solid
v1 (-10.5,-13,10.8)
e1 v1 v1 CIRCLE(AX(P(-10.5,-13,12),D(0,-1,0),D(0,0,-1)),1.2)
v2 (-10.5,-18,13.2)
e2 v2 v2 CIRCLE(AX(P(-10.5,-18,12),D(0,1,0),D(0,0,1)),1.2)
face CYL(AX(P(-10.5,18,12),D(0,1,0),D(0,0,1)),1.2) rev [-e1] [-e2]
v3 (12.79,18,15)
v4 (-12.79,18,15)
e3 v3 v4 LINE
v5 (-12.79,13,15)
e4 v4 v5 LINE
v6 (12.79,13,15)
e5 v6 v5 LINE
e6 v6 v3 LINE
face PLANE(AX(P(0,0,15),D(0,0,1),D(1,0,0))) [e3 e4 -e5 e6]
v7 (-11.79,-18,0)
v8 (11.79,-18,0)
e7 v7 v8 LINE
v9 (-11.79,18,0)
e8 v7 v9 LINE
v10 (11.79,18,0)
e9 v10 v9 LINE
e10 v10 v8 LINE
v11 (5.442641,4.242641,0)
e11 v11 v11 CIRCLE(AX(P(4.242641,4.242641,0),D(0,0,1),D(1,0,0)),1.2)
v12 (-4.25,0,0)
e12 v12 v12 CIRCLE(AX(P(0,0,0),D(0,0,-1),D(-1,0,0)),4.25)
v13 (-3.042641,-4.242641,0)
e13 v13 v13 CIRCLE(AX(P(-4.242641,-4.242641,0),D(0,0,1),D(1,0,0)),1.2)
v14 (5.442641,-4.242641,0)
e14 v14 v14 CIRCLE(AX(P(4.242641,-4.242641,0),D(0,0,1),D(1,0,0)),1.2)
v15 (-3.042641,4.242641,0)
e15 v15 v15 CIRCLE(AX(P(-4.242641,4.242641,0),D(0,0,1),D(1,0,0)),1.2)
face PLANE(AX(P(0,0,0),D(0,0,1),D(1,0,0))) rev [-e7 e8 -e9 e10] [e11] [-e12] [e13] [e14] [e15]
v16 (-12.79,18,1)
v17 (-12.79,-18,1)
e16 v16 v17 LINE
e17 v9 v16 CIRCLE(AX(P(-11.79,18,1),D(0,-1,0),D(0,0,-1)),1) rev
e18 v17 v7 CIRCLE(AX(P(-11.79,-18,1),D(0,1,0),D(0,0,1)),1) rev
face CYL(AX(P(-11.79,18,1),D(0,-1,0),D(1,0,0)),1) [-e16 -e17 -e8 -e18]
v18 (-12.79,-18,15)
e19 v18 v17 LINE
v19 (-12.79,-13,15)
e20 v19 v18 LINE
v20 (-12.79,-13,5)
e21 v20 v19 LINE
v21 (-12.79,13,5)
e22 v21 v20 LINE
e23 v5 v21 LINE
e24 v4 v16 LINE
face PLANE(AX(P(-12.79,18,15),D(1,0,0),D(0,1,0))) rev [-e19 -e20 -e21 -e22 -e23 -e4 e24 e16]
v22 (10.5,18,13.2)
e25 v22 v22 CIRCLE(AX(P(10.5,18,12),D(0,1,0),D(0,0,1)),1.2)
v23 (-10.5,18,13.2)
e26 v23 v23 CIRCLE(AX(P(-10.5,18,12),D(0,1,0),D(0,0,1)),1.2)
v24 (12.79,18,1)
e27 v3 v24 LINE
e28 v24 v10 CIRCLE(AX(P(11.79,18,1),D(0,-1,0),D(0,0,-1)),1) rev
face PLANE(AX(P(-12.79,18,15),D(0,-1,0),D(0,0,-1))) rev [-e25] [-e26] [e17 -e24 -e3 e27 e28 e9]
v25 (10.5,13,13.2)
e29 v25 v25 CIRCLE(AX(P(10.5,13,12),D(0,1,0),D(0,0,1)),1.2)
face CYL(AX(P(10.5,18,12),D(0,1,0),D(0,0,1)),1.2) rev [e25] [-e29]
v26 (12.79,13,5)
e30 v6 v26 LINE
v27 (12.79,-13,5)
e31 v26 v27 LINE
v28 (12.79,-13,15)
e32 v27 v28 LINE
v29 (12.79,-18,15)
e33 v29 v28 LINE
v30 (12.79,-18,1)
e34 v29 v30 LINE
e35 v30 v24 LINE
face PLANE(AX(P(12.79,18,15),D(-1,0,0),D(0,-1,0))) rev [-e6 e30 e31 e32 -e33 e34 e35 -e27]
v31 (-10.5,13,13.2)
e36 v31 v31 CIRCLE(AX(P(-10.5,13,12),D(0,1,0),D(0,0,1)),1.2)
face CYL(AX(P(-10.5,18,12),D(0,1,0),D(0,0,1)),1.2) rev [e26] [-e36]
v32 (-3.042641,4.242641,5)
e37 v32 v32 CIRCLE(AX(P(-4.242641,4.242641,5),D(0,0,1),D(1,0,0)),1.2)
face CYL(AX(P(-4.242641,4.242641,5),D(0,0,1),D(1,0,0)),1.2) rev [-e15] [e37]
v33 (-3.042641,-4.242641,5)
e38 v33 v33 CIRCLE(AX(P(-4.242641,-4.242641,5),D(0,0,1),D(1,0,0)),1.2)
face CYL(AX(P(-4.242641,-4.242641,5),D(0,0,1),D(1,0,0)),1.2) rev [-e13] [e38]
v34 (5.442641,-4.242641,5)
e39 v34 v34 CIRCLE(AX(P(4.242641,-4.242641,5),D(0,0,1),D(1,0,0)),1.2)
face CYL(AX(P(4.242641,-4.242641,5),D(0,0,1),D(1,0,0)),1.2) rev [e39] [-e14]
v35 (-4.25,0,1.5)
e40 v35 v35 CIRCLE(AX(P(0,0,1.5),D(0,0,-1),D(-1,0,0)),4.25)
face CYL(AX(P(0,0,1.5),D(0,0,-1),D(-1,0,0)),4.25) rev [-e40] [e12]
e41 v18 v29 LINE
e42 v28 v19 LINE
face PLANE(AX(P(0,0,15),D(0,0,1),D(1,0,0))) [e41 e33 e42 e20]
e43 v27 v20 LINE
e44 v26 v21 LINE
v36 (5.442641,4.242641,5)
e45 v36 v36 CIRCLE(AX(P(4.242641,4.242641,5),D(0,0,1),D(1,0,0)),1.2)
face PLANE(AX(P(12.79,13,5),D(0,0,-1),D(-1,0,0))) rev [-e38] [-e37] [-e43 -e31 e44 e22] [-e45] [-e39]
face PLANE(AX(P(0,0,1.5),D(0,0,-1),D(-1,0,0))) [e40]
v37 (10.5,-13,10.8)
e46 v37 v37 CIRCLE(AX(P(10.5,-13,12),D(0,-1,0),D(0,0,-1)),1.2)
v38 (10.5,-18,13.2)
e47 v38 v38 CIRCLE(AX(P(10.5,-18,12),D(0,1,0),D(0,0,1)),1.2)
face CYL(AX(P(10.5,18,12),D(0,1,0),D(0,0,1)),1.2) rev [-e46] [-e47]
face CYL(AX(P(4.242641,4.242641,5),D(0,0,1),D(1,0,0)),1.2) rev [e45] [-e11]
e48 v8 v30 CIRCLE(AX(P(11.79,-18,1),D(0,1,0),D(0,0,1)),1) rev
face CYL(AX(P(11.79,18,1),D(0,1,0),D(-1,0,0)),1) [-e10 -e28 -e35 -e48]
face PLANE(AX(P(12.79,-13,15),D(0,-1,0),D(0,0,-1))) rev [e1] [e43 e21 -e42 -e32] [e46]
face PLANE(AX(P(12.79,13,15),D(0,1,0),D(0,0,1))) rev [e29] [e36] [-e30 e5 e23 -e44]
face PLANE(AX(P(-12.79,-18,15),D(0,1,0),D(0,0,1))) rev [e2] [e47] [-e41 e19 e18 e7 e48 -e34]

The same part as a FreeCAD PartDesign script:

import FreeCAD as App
import Part
import Sketcher


def edges_at(feature, points):
    """Names of the edges that pass closest to the given points."""
    edges = feature.Shape.Edges
    near = lambda p: min(range(len(edges)), key=lambda i: edges[i].distToShape(Part.Vertex(*p))[0])
    return sorted({f"Edge{near(p) + 1}" for p in points})

doc = App.newDocument("Part")
body = doc.addObject("PartDesign::Body", "Body")

sketch1 = body.newObject("Sketcher::SketchObject", "Sketch")
sketch1.AttachmentSupport = (doc.getObject("XY_Plane"), [""])
sketch1.MapMode = "FlatFace"
sketch1.addGeometry([
    Part.LineSegment(App.Vector(-13, 18, 0), App.Vector(-13, -18, 0)),
    Part.LineSegment(App.Vector(-13, -18, 0), App.Vector(13, -18, 0)),
    Part.LineSegment(App.Vector(13, -18, 0), App.Vector(13, 18, 0)),
    Part.LineSegment(App.Vector(13, 18, 0), App.Vector(-13, 18, 0)),
], False)
sketch1.addConstraint([
    Sketcher.Constraint("Coincident", 0, 2, 1, 1),
    Sketcher.Constraint("Coincident", 1, 2, 2, 1),
    Sketcher.Constraint("Coincident", 2, 2, 3, 1),
    Sketcher.Constraint("Coincident", 3, 2, 0, 1),
    Sketcher.Constraint("Vertical", 0),
    Sketcher.Constraint("Horizontal", 1),
    Sketcher.Constraint("Vertical", 2),
    Sketcher.Constraint("Horizontal", 3),
    Sketcher.Constraint("Symmetric", 0, 2, 2, 2, -1, 1),
    Sketcher.Constraint("DistanceY", 0, 2, 0, 1, 36.0),
    Sketcher.Constraint("DistanceX", 1, 1, 1, 2, 25.58),
])
pad1 = body.newObject("PartDesign::Pad", "Pad")
pad1.Profile = sketch1
pad1.Length = 15

sketch2 = body.newObject("Sketcher::SketchObject", "Sketch001")
sketch2.AttachmentSupport = (doc.getObject("YZ_Plane"), [""])
sketch2.MapMode = "FlatFace"
sketch2.AttachmentOffset = App.Placement(App.Vector(0, 0, -12.79), App.Rotation())
sketch2.addGeometry([
    Part.LineSegment(App.Vector(13, 5, 0), App.Vector(-13, 5, 0)),
    Part.LineSegment(App.Vector(-13, 5, 0), App.Vector(-13, 15, 0)),
    Part.LineSegment(App.Vector(-13, 15, 0), App.Vector(13, 15, 0)),
    Part.LineSegment(App.Vector(13, 15, 0), App.Vector(13, 5, 0)),
], False)
sketch2.addConstraint([
    Sketcher.Constraint("Coincident", 0, 2, 1, 1),
    Sketcher.Constraint("Coincident", 1, 2, 2, 1),
    Sketcher.Constraint("Coincident", 2, 2, 3, 1),
    Sketcher.Constraint("Coincident", 3, 2, 0, 1),
    Sketcher.Constraint("Horizontal", 0),
    Sketcher.Constraint("Vertical", 1),
    Sketcher.Constraint("Horizontal", 2),
    Sketcher.Constraint("Vertical", 3),
    Sketcher.Constraint("DistanceX", 0, 2, 0, 1, 26.0),
    Sketcher.Constraint("DistanceY", 1, 1, 1, 2, 10.0),
    Sketcher.Constraint("DistanceX", 0, 2, -1, 1, 13.0),
    Sketcher.Constraint("DistanceY", -1, 1, 0, 2, 5.0),
])
pocket1 = body.newObject("PartDesign::Pocket", "Pocket")
pocket1.Profile = sketch2
pocket1.Type = "ThroughAll"
pocket1.Reversed = True

sketch3 = body.newObject("Sketcher::SketchObject", "Sketch002")
sketch3.AttachmentSupport = (doc.getObject("XZ_Plane"), [""])
sketch3.MapMode = "FlatFace"
sketch3.AttachmentOffset = App.Placement(App.Vector(0, 0, -18), App.Rotation())
sketch3.addGeometry([
    Part.Circle(App.Vector(-10.5, 12, 0), App.Vector(0, 0, 1), 1.2),
    Part.Circle(App.Vector(10.5, 12, 0), App.Vector(0, 0, 1), 1.2),
], False)
sketch3.addConstraint([
    Sketcher.Constraint("Equal", 0, 1),
    Sketcher.Constraint("Symmetric", 0, 3, 1, 3, -2),
    Sketcher.Constraint("Diameter", 0, 2.4),
    Sketcher.Constraint("DistanceY", -1, 1, 0, 3, 12.0),
    Sketcher.Constraint("DistanceX", 0, 3, 1, 3, 21.0),
])
doc.recompute()
hole = body.newObject("PartDesign::Hole", "Hole")
hole.Profile = sketch3
hole.ThreadType = "None"
hole.Diameter = 2.4
hole.DepthType = "ThroughAll"
hole.Reversed = True
doc.recompute()

fillet = body.newObject("PartDesign::Fillet", "Fillet")
fillet.Base = (hole, edges_at(hole, [(-12.79, 0, 0), (12.79, 0, 0)]))
fillet.Radius = 1

sketch4 = body.newObject("Sketcher::SketchObject", "Sketch003")
sketch4.AttachmentSupport = (doc.getObject("XY_Plane"), [""])
sketch4.MapMode = "FlatFace"
sketch4.addGeometry(Part.Circle(App.Vector(0, 0, 0), App.Vector(0, 0, 1), 4.2), False)
sketch4.addConstraint([
    Sketcher.Constraint("Coincident", 0, 3, -1, 1),
    Sketcher.Constraint("Diameter", 0, 8.5),
])
pocket2 = body.newObject("PartDesign::Pocket", "Pocket001")
pocket2.Profile = sketch4
pocket2.Length = 1.5
pocket2.Reversed = True

sketch5 = body.newObject("Sketcher::SketchObject", "Sketch004")
sketch5.AttachmentSupport = (doc.getObject("XY_Plane"), [""])
sketch5.MapMode = "FlatFace"
sketch5.AttachmentOffset = App.Placement(App.Vector(0, 0, 5), App.Rotation())
sketch5.addGeometry([
    Part.Circle(App.Vector(4.2, 4.2, 0), App.Vector(0, 0, 1), 1.2),
    Part.Circle(App.Vector(-4.2, -4.2, 0), App.Vector(0, 0, 1), 1.2),
    Part.Circle(App.Vector(4.2, -4.2, 0), App.Vector(0, 0, 1), 1.2),
    Part.Circle(App.Vector(-4.2, 4.2, 0), App.Vector(0, 0, 1), 1.2),
], False)
sketch5.addConstraint([
    Sketcher.Constraint("Equal", 0, 1),
    Sketcher.Constraint("Equal", 1, 2),
    Sketcher.Constraint("Equal", 2, 3),
    Sketcher.Constraint("Symmetric", 0, 3, 1, 3, -1, 1),
    Sketcher.Constraint("Symmetric", 2, 3, 3, 3, -1, 1),
    Sketcher.Constraint("Symmetric", 1, 3, 2, 3, -2),
    Sketcher.Constraint("Diameter", 0, 2.4),
    Sketcher.Constraint("DistanceX", -1, 1, 0, 3, 4.242641),
    Sketcher.Constraint("DistanceY", -1, 1, 0, 3, 4.242641),
])
doc.recompute()
hole2 = body.newObject("PartDesign::Hole", "Hole001")
hole2.Profile = sketch5
hole2.ThreadType = "None"
hole2.Diameter = 2.4
hole2.DepthType = "ThroughAll"

doc.recompute()
